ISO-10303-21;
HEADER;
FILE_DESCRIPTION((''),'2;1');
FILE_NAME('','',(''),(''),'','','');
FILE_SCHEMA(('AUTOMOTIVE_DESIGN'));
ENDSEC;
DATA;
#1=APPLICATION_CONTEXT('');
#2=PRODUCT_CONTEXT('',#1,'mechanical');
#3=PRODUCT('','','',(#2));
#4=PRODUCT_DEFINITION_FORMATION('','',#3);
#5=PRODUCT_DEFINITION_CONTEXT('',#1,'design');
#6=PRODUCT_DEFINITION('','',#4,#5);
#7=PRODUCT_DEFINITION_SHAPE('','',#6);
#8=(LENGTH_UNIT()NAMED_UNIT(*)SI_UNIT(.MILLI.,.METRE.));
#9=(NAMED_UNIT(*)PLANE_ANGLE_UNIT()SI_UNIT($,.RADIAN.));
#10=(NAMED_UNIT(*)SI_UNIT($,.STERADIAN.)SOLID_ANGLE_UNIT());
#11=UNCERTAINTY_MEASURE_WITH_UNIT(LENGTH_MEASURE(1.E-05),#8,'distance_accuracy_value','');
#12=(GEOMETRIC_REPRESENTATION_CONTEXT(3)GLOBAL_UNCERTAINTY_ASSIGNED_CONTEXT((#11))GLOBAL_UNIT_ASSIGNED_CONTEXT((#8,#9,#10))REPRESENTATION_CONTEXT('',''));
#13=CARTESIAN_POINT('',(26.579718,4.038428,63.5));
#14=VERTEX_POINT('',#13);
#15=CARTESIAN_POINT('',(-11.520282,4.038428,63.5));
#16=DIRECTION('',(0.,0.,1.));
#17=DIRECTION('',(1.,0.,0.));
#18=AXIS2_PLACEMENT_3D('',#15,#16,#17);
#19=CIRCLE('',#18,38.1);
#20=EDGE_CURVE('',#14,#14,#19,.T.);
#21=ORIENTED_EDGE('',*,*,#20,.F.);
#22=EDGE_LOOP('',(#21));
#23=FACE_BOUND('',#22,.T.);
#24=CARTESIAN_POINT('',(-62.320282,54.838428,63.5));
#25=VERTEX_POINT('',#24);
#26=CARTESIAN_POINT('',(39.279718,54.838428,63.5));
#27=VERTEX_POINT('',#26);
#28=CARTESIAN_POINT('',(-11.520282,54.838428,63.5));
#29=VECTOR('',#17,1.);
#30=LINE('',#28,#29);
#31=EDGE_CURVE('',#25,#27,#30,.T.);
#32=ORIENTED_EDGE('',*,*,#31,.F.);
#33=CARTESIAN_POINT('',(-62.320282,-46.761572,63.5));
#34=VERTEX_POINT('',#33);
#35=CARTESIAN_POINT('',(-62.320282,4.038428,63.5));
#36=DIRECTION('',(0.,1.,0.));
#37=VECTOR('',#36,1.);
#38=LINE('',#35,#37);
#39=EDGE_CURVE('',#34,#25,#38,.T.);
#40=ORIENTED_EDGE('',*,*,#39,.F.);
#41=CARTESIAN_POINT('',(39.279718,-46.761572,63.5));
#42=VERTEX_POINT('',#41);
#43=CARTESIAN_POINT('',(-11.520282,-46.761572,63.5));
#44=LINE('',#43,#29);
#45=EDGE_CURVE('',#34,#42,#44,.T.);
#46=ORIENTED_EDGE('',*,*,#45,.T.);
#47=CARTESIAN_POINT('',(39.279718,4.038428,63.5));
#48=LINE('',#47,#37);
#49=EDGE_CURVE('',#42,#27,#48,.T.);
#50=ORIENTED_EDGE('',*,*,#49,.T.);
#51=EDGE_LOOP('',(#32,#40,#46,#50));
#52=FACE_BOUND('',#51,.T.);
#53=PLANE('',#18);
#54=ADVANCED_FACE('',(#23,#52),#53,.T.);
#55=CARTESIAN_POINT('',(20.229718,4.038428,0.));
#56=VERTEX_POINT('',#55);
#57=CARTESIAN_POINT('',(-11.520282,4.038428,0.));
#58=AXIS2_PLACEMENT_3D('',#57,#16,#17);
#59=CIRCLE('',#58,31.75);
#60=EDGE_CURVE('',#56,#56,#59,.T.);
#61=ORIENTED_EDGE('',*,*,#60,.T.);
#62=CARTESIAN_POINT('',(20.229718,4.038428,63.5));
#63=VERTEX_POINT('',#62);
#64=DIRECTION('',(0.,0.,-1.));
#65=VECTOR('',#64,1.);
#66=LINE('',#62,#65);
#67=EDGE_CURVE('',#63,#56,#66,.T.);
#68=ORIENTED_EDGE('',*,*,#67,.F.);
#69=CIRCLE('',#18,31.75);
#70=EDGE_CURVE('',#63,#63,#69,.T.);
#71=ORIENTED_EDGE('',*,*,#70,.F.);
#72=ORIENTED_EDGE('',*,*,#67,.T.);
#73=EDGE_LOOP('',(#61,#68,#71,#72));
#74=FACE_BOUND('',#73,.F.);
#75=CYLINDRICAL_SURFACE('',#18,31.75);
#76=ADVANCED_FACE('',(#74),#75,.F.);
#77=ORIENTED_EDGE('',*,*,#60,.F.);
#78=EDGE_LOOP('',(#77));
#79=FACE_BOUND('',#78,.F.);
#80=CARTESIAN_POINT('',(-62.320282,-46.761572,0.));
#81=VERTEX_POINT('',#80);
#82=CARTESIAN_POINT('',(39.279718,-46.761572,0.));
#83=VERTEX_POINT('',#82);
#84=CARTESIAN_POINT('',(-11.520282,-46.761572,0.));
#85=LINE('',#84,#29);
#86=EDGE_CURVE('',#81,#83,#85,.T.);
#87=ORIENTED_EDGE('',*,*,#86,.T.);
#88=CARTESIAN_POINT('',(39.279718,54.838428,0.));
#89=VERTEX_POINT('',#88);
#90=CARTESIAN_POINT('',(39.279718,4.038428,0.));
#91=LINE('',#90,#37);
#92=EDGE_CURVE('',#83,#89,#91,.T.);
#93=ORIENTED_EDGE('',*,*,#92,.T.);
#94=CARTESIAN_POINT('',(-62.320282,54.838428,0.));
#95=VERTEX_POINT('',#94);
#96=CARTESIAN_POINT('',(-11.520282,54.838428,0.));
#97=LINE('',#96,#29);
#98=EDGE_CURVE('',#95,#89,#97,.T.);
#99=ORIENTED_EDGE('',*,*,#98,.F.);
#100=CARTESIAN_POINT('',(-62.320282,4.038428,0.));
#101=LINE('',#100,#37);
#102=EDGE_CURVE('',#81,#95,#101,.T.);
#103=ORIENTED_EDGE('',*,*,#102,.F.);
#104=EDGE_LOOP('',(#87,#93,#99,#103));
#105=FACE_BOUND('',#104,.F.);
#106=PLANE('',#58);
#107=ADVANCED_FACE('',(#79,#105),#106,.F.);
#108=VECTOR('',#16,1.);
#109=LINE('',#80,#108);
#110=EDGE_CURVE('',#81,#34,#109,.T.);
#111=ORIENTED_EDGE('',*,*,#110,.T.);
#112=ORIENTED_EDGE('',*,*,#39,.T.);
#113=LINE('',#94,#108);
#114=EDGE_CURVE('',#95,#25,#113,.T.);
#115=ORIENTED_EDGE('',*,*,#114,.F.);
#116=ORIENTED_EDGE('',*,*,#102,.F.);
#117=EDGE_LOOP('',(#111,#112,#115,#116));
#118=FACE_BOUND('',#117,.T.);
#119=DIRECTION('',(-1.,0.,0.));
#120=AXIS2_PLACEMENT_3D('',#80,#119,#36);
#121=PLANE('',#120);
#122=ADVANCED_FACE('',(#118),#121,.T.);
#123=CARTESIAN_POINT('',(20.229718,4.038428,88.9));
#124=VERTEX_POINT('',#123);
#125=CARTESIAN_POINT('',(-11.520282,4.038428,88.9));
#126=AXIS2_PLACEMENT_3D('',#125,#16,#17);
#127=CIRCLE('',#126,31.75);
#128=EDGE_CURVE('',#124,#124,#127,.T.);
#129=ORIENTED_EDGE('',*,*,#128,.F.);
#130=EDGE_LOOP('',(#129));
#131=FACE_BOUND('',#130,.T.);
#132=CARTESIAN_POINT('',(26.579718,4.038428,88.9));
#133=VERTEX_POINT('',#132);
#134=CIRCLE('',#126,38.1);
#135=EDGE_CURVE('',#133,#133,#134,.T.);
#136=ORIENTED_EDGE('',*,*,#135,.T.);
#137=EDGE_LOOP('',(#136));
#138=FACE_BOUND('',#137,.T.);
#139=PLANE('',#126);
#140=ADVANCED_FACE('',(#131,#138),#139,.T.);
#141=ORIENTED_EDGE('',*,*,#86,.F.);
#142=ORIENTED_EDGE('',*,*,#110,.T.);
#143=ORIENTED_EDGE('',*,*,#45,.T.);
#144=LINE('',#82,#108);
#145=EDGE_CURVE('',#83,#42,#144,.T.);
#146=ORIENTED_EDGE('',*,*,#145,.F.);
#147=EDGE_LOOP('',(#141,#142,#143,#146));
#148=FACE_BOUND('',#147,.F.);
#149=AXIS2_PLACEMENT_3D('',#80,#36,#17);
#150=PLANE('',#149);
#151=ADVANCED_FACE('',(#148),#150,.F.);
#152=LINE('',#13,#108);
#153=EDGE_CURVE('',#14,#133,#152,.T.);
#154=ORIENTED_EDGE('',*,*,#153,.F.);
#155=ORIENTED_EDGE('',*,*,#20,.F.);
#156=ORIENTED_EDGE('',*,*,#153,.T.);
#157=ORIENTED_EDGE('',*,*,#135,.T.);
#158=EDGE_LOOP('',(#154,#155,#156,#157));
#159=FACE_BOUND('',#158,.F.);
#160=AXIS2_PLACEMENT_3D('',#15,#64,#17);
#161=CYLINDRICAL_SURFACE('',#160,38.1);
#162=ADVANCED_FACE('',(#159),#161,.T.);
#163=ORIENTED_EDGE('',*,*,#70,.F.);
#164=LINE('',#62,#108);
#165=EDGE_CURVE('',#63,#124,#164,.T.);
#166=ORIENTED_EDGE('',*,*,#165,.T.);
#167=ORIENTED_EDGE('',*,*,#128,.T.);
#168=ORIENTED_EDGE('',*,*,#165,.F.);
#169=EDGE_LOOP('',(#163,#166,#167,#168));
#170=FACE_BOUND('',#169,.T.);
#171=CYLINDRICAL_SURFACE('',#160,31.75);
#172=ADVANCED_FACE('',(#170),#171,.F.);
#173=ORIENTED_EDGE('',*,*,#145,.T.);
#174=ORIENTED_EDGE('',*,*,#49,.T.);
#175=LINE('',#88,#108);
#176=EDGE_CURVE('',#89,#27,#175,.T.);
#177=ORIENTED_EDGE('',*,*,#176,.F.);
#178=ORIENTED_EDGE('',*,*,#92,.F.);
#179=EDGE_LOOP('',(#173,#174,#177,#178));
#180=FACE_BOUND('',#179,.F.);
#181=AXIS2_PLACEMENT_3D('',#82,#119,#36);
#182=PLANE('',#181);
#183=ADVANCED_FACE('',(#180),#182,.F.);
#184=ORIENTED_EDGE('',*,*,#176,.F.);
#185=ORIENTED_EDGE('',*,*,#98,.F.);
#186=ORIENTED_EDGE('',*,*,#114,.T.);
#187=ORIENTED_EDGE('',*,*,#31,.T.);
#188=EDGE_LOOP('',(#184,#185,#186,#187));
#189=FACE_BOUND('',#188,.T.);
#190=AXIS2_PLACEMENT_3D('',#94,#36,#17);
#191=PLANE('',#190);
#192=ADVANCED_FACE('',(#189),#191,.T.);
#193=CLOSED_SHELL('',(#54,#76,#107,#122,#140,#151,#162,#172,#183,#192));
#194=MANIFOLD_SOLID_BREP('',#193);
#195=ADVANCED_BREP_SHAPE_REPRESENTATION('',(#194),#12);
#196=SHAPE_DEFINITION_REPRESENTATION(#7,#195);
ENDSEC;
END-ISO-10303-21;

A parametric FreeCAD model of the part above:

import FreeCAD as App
import Part
import Sketcher

V = App.Vector
Q = App.Units.Quantity

doc = App.newDocument("Part")
body = doc.addObject("PartDesign::Body", "Body")

sketch1 = body.newObject("Sketcher::SketchObject", "Sketch")
sketch1.AttachmentSupport = (doc.getObject("XY_Plane"), [""])
sketch1.MapMode = "FlatFace"
sketch1.addGeometry([
    Part.LineSegment(V(-62.320282, 54.838428, 0), V(-62.320282, -46.761572, 0)),
    Part.LineSegment(V(-62.320282, -46.761572, 0), V(39.279718, -46.761572, 0)),
    Part.LineSegment(V(39.279718, -46.761572, 0), V(39.279718, 54.838428, 0)),
    Part.LineSegment(V(39.279718, 54.838428, 0), V(-62.320282, 54.838428, 0)),
], False)
sketch1.addConstraint([
    Sketcher.Constraint("Coincident", 0, 2, 1, 1),
    Sketcher.Constraint("Coincident", 1, 2, 2, 1),
    Sketcher.Constraint("Coincident", 2, 2, 3, 1),
    Sketcher.Constraint("Coincident", 3, 2, 0, 1),
    Sketcher.Constraint("Vertical", 0),
    Sketcher.Constraint("Horizontal", 1),
    Sketcher.Constraint("Vertical", 2),
    Sketcher.Constraint("Horizontal", 3),
    Sketcher.Constraint("Equal", 3, 0),
    Sketcher.Constraint("DistanceX", 1, 1, 1, 2, Q("4 in")),
    Sketcher.Constraint("DistanceX", -1, 1, 1, 2, Q("39.279718 mm")),
    Sketcher.Constraint("DistanceY", 0, 2, -1, 1, Q("46.761572 mm")),
])
pad1 = body.newObject("PartDesign::Pad", "Pad")
pad1.Profile = sketch1
pad1.Length = Q("2.5 in")

sketch2 = body.newObject("Sketcher::SketchObject", "Sketch001")
sketch2.AttachmentSupport = (doc.getObject("XY_Plane"), [""])
sketch2.MapMode = "FlatFace"
sketch2.AttachmentOffset = App.Placement(V(0, 0, 2.5 * 25.4), App.Rotation())
sketch2.addGeometry([
    Part.Circle(V(-11.520282, 4.038428, 0), V(0, 0, 1), 38.1),
    Part.Circle(V(-11.520282, 4.038428, 0), V(0, 0, 1), 31.75),
], False)
sketch2.addConstraint([
    Sketcher.Constraint("Coincident", 1, 3, 0, 3),
    Sketcher.Constraint("Diameter", 0, Q("3 in")),
    Sketcher.Constraint("Diameter", 1, Q("2.5 in")),
    Sketcher.Constraint("DistanceX", 0, 3, -1, 1, Q("11.520282 mm")),
    Sketcher.Constraint("DistanceY", -1, 1, 0, 3, Q("4.038428 mm")),
])
pad2 = body.newObject("PartDesign::Pad", "Pad001")
pad2.Profile = sketch2
pad2.Length = Q("1 in")

sketch3 = body.newObject("Sketcher::SketchObject", "Sketch002")
sketch3.AttachmentSupport = (doc.getObject("XY_Plane"), [""])
sketch3.MapMode = "FlatFace"
sketch3.AttachmentOffset = App.Placement(V(0, 0, 2.5 * 25.4), App.Rotation())
sketch3.addGeometry(Part.Circle(V(-11.520282, 4.038428, 0), V(0, 0, 1), 31.75), False)
sketch3.addConstraint([
    Sketcher.Constraint("Diameter", 0, Q("2.5 in")),
    Sketcher.Constraint("DistanceX", 0, 3, -1, 1, Q("11.520282 mm")),
    Sketcher.Constraint("DistanceY", -1, 1, 0, 3, Q("4.038428 mm")),
])
pocket1 = body.newObject("PartDesign::Pocket", "Pocket")
pocket1.Profile = sketch3
pocket1.Length = Q("2.5 in")

doc.recompute()
